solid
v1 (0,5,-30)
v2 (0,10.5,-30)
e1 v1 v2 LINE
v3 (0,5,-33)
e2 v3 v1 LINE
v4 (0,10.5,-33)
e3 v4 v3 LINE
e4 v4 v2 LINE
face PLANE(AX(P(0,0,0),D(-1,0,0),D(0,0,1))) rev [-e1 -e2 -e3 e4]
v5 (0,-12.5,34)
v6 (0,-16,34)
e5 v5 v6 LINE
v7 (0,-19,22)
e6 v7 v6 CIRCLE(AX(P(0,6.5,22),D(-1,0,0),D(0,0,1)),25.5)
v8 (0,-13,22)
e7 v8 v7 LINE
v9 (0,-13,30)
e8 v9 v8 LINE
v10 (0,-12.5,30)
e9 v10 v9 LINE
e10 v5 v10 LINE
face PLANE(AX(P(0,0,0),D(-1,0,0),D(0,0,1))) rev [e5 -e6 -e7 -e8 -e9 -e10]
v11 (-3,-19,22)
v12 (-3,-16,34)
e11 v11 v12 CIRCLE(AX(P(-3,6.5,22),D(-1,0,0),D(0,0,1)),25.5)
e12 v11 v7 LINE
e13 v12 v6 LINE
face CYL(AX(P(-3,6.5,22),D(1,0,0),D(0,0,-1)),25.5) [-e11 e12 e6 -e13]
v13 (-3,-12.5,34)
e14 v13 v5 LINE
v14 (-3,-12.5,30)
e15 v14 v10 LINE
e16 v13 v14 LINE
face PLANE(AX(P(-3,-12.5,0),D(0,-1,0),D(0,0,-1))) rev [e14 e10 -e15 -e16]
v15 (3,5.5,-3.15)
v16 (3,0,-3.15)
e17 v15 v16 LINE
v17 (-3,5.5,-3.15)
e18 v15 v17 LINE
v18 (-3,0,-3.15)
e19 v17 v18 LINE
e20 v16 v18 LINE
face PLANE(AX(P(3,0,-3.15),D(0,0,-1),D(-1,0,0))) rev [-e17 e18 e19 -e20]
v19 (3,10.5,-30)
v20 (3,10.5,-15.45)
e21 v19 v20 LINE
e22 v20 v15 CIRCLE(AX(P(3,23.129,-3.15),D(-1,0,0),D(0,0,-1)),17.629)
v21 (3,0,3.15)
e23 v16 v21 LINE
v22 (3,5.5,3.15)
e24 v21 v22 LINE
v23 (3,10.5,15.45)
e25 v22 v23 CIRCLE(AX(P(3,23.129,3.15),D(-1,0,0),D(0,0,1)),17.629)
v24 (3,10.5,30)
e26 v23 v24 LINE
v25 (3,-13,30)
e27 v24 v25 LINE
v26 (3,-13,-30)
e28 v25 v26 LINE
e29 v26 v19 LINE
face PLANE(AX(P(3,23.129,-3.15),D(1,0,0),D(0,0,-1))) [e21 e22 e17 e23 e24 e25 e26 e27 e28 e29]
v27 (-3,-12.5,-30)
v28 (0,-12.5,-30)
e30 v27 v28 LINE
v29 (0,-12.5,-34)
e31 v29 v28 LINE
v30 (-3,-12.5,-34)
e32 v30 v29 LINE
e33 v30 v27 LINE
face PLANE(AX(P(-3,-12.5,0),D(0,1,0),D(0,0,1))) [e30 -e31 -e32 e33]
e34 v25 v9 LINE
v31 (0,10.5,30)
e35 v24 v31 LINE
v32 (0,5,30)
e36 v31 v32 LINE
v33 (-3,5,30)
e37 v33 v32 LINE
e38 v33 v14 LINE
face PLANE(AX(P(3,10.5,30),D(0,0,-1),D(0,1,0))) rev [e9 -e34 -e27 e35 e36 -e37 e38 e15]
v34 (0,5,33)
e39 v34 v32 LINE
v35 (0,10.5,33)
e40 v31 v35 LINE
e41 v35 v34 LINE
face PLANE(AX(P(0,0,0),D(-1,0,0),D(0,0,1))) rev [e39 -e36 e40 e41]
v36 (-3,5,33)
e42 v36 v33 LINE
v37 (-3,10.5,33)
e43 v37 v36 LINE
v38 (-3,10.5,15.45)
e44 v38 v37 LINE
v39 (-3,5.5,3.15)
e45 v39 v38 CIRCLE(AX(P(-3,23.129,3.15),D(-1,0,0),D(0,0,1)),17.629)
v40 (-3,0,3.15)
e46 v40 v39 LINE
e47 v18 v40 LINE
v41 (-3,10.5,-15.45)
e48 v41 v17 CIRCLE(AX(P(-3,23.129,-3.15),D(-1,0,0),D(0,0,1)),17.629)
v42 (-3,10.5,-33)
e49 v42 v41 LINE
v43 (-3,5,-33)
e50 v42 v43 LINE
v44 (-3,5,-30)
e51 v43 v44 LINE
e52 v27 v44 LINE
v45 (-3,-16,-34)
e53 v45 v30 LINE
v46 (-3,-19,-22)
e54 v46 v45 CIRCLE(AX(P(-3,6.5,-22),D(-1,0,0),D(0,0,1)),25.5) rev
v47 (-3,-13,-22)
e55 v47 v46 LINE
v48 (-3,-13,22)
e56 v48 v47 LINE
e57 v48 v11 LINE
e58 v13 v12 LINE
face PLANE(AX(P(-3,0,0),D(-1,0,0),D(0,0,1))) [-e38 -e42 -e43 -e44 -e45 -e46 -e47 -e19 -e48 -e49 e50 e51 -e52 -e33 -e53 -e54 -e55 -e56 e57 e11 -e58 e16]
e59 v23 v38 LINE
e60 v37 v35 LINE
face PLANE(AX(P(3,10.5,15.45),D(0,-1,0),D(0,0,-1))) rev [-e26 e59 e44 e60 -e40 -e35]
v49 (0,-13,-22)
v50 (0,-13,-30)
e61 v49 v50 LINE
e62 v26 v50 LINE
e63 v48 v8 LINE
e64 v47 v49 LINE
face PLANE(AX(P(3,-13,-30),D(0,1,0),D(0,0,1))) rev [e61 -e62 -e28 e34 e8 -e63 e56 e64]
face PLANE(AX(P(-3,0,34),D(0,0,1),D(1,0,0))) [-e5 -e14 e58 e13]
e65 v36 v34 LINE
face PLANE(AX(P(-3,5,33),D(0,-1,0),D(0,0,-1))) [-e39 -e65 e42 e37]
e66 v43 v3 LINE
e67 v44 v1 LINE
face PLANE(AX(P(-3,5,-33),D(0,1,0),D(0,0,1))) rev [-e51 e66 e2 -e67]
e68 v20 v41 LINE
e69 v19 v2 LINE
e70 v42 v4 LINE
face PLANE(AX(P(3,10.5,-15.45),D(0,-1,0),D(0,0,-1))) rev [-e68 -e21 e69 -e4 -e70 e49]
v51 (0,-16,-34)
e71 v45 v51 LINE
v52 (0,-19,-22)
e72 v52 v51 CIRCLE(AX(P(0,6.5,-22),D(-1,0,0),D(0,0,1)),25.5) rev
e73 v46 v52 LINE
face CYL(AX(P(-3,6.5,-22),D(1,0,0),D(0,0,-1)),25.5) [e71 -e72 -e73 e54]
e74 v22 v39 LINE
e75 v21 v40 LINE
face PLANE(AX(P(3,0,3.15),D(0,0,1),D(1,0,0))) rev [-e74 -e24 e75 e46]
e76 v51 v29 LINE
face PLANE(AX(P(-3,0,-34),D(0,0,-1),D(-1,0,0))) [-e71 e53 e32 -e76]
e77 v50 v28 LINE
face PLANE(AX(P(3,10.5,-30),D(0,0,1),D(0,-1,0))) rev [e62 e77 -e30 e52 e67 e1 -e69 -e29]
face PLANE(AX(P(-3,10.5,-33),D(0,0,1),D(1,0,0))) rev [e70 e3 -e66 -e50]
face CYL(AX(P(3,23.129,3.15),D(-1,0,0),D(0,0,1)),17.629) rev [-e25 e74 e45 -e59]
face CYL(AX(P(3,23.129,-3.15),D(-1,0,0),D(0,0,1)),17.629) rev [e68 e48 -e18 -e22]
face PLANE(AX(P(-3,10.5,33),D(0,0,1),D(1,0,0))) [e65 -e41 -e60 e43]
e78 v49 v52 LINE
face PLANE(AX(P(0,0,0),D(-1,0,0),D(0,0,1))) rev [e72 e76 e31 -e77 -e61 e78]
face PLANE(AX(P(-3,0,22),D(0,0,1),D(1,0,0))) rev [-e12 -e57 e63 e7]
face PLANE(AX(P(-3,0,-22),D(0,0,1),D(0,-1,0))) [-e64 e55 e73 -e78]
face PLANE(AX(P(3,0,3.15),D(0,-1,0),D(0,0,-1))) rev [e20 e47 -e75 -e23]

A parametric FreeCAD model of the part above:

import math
import FreeCAD as App
import Part
import Sketcher

V = App.Vector
Q = App.Units.Quantity

doc = App.newDocument("Part")
body = doc.addObject("PartDesign::Body", "Body")

sketch1 = doc.addObject("Sketcher::SketchObject", "Sketch")
body.addObject(sketch1)
sketch1.AttachmentSupport = (doc.YZ_Plane, [""])
sketch1.MapMode = "FlatFace"
sketch1.addGeometry([
    Part.LineSegment(V(0, -3.15, 0), V(0, 3.15, 0)),
    Part.LineSegment(V(0, 3.15, 0), V(5.5, 3.15, 0)),
    Part.ArcOfCircle(Part.Circle(V(23.129, 3.15, 0), V(0, 0, 1), 17.629), math.radians(135.756116), math.radians(180)),
    Part.LineSegment(V(10.5, 15.45, 0), V(10.5, 30, 0)),
    Part.LineSegment(V(10.5, 30, 0), V(-13, 30, 0)),
    Part.LineSegment(V(-13, 30, 0), V(-13, -30, 0)),
    Part.LineSegment(V(-13, -30, 0), V(10.5, -30, 0)),
    Part.LineSegment(V(10.5, -30, 0), V(10.5, -15.45, 0)),
    Part.ArcOfCircle(Part.Circle(V(23.129, -3.15, 0), V(0, 0, 1), 17.629), math.radians(-180), math.radians(-135.756116)),
    Part.LineSegment(V(5.5, -3.15, 0), V(0, -3.15, 0)),
], False)
sketch1.addConstraint([
    Sketcher.Constraint("Coincident", 0, 2, 1, 1),
    Sketcher.Constraint("Coincident", 1, 2, 2, 2),
    Sketcher.Constraint("Coincident", 2, 1, 3, 1),
    Sketcher.Constraint("Coincident", 3, 2, 4, 1),
    Sketcher.Constraint("Coincident", 4, 2, 5, 1),
    Sketcher.Constraint("Coincident", 5, 2, 6, 1),
    Sketcher.Constraint("Coincident", 6, 2, 7, 1),
    Sketcher.Constraint("Coincident", 7, 2, 8, 2),
    Sketcher.Constraint("Coincident", 8, 1, 9, 1),
    Sketcher.Constraint("Coincident", 9, 2, 0, 1),
    Sketcher.Constraint("Vertical", 0),
    Sketcher.Constraint("Horizontal", 1),
    Sketcher.Constraint("Vertical", 3),
    Sketcher.Constraint("Horizontal", 4),
    Sketcher.Constraint("Vertical", 5),
    Sketcher.Constraint("Horizontal", 6),
    Sketcher.Constraint("Vertical", 7),
    Sketcher.Constraint("Horizontal", 9),
    Sketcher.Constraint("Equal", 2, 8),
    Sketcher.Constraint("Symmetric", 0, 2, 9, 2, -1, 1),
    Sketcher.Constraint("Symmetric", 2, 3, 8, 3, -1),
    Sketcher.Constraint("Symmetric", 3, 2, 6, 2, -1),
    Sketcher.Constraint("Horizontal", 2, 3, 0, 2),
    Sketcher.Constraint("DistanceY", 5, 2, 5, 1, Q("60 mm")),
    Sketcher.Constraint("DistanceX", 1, 1, 1, 2, Q("5.5 mm")),
    Sketcher.Constraint("DistanceX", 4, 2, 4, 1, Q("23.5 mm")),
    Sketcher.Constraint("DistanceY", 0, 1, 0, 2, Q("6.3 mm")),
    Sketcher.Constraint("DistanceX", 4, 2, -1, 1, Q("13 mm")),
    Sketcher.Constraint("Radius", 2, Q("17.629 mm")),
])
pad1 = doc.addObject("PartDesign::Pad", "Pad")
body.addObject(pad1)
pad1.Profile = sketch1
pad1.Length = 3

sketch2 = doc.addObject("Sketcher::SketchObject", "Sketch001")
body.addObject(sketch2)
sketch2.AttachmentSupport = (doc.YZ_Plane, [""])
sketch2.MapMode = "FlatFace"
sketch2.AttachmentOffset = App.Placement(V(0, 0, -3), App.Rotation())
sketch2.addGeometry([
    Part.LineSegment(V(-12.5, 34, 0), V(-12.5, 30, 0)),
    Part.LineSegment(V(-12.5, 30, 0), V(5, 30, 0)),
    Part.LineSegment(V(5, 30, 0), V(5, 33, 0)),
    Part.LineSegment(V(5, 33, 0), V(10.5, 33, 0)),
    Part.LineSegment(V(10.5, 33, 0), V(10.5, 15.45, 0)),
    Part.ArcOfCircle(Part.Circle(V(23.129, 3.15, 0), V(0, 0, 1), 17.629), math.radians(135.756116), math.radians(180)),
    Part.LineSegment(V(5.5, 3.15, 0), V(0, 3.15, 0)),
    Part.LineSegment(V(0, 3.15, 0), V(0, -3.15, 0)),
    Part.LineSegment(V(0, -3.15, 0), V(5.5, -3.15, 0)),
    Part.ArcOfCircle(Part.Circle(V(23.129, -3.15, 0), V(0, 0, 1), 17.629), math.radians(-180), math.radians(-135.756116)),
    Part.LineSegment(V(10.5, -15.45, 0), V(10.5, -33, 0)),
    Part.LineSegment(V(10.5, -33, 0), V(5, -33, 0)),
    Part.LineSegment(V(5, -33, 0), V(5, -30, 0)),
    Part.LineSegment(V(5, -30, 0), V(-12.5, -30, 0)),
    Part.LineSegment(V(-12.5, -30, 0), V(-12.5, -34, 0)),
    Part.LineSegment(V(-12.5, -34, 0), V(-16, -34, 0)),
    Part.ArcOfCircle(Part.Circle(V(6.5, -22, 0), V(0, 0, 1), 25.5), math.radians(180), math.radians(208.072487)),
    Part.LineSegment(V(-19, -22, 0), V(-13, -22, 0)),
    Part.LineSegment(V(-13, -22, 0), V(-13, 22, 0)),
    Part.LineSegment(V(-13, 22, 0), V(-19, 22, 0)),
    Part.ArcOfCircle(Part.Circle(V(6.5, 22, 0), V(0, 0, 1), 25.5), math.radians(151.927513), math.radians(180)),
    Part.LineSegment(V(-16, 34, 0), V(-12.5, 34, 0)),
], False)
sketch2.addConstraint([
    Sketcher.Constraint("Coincident", 0, 2, 1, 1),
    Sketcher.Constraint("Coincident", 1, 2, 2, 1),
    Sketcher.Constraint("Coincident", 2, 2, 3, 1),
    Sketcher.Constraint("Coincident", 3, 2, 4, 1),
    Sketcher.Constraint("Coincident", 4, 2, 5, 1),
    Sketcher.Constraint("Coincident", 5, 2, 6, 1),
    Sketcher.Constraint("Coincident", 6, 2, 7, 1),
    Sketcher.Constraint("Coincident", 7, 2, 8, 1),
    Sketcher.Constraint("Coincident", 8, 2, 9, 1),
    Sketcher.Constraint("Coincident", 9, 2, 10, 1),
    Sketcher.Constraint("Coincident", 10, 2, 11, 1),
    Sketcher.Constraint("Coincident", 11, 2, 12, 1),
    Sketcher.Constraint("Coincident", 12, 2, 13, 1),
    Sketcher.Constraint("Coincident", 13, 2, 14, 1),
    Sketcher.Constraint("Coincident", 14, 2, 15, 1),
    Sketcher.Constraint("Coincident", 15, 2, 16, 2),
    Sketcher.Constraint("Coincident", 16, 1, 17, 1),
    Sketcher.Constraint("Coincident", 17, 2, 18, 1),
    Sketcher.Constraint("Coincident", 18, 2, 19, 1),
    Sketcher.Constraint("Coincident", 19, 2, 20, 2),
    Sketcher.Constraint("Coincident", 20, 1, 21, 1),
    Sketcher.Constraint("Coincident", 21, 2, 0, 1),
    Sketcher.Constraint("Vertical", 0),
    Sketcher.Constraint("Horizontal", 1),
    Sketcher.Constraint("Vertical", 2),
    Sketcher.Constraint("Horizontal", 3),
    Sketcher.Constraint("Vertical", 4),
    Sketcher.Constraint("Horizontal", 6),
    Sketcher.Constraint("Vertical", 7),
    Sketcher.Constraint("Horizontal", 8),
    Sketcher.Constraint("Vertical", 10),
    Sketcher.Constraint("Horizontal", 11),
    Sketcher.Constraint("Vertical", 12),
    Sketcher.Constraint("Horizontal", 13),
    Sketcher.Constraint("Vertical", 14),
    Sketcher.Constraint("Horizontal", 15),
    Sketcher.Constraint("Horizontal", 17),
    Sketcher.Constraint("Vertical", 18),
    Sketcher.Constraint("Horizontal", 19),
    Sketcher.Constraint("Horizontal", 21),
    Sketcher.Constraint("Equal", 5, 9),
    Sketcher.Constraint("Equal", 16, 20),
    Sketcher.Constraint("Symmetric", 6, 2, 7, 2, -1, 1),
    Sketcher.Constraint("Symmetric", 5, 3, 9, 3, -1),
    Sketcher.Constraint("Symmetric", 16, 3, 20, 3, -1),
    Sketcher.Constraint("Symmetric", 3, 2, 10, 2, -1),
    Sketcher.Constraint("Symmetric", 1, 2, 12, 2, -1),
    Sketcher.Constraint("Symmetric", 14, 2, 21, 2, -1),
    Sketcher.Constraint("Horizontal", 9, 3, 7, 2),
    Sketcher.Constraint("Horizontal", 20, 3, 18, 2),
    Sketcher.Constraint("Equal", 3, 6),
    Sketcher.Constraint("Radius", 16, Q("25.5 mm")),
    Sketcher.Constraint("DistanceX", 17, 1, 17, 2, Q("6 mm")),
    Sketcher.Constraint("DistanceY", 0, 2, 0, 1, Q("4 mm")),
    Sketcher.Constraint("DistanceY", 2, 1, 2, 2, Q("3 mm")),
    Sketcher.Constraint("DistanceY", 18, 1, 18, 2, Q("44 mm")),
    Sketcher.Constraint("DistanceX", 1, 1, 1, 2, Q("17.5 mm")),
    Sketcher.Constraint("DistanceX", 3, 1, 3, 2, Q("5.5 mm")),
    Sketcher.Constraint("DistanceX", 15, 2, 15, 1, Q("3.5 mm")),
    Sketcher.Constraint("DistanceY", 7, 2, 7, 1, Q("6.3 mm")),
    Sketcher.Constraint("DistanceY", 16, 3, -1, 1, Q("22 mm")),
    Sketcher.Constraint("DistanceY", -1, 1, 0, 2, Q("30 mm")),
    Sketcher.Constraint("DistanceX", -1, 1, 1, 2, Q("5 mm")),
    Sketcher.Constraint("Radius", 5, Q("17.629 mm")),
])
pad2 = doc.addObject("PartDesign::Pad", "Pad001")
body.addObject(pad2)
pad2.Profile = sketch2
pad2.Length = 3

doc.recompute()
